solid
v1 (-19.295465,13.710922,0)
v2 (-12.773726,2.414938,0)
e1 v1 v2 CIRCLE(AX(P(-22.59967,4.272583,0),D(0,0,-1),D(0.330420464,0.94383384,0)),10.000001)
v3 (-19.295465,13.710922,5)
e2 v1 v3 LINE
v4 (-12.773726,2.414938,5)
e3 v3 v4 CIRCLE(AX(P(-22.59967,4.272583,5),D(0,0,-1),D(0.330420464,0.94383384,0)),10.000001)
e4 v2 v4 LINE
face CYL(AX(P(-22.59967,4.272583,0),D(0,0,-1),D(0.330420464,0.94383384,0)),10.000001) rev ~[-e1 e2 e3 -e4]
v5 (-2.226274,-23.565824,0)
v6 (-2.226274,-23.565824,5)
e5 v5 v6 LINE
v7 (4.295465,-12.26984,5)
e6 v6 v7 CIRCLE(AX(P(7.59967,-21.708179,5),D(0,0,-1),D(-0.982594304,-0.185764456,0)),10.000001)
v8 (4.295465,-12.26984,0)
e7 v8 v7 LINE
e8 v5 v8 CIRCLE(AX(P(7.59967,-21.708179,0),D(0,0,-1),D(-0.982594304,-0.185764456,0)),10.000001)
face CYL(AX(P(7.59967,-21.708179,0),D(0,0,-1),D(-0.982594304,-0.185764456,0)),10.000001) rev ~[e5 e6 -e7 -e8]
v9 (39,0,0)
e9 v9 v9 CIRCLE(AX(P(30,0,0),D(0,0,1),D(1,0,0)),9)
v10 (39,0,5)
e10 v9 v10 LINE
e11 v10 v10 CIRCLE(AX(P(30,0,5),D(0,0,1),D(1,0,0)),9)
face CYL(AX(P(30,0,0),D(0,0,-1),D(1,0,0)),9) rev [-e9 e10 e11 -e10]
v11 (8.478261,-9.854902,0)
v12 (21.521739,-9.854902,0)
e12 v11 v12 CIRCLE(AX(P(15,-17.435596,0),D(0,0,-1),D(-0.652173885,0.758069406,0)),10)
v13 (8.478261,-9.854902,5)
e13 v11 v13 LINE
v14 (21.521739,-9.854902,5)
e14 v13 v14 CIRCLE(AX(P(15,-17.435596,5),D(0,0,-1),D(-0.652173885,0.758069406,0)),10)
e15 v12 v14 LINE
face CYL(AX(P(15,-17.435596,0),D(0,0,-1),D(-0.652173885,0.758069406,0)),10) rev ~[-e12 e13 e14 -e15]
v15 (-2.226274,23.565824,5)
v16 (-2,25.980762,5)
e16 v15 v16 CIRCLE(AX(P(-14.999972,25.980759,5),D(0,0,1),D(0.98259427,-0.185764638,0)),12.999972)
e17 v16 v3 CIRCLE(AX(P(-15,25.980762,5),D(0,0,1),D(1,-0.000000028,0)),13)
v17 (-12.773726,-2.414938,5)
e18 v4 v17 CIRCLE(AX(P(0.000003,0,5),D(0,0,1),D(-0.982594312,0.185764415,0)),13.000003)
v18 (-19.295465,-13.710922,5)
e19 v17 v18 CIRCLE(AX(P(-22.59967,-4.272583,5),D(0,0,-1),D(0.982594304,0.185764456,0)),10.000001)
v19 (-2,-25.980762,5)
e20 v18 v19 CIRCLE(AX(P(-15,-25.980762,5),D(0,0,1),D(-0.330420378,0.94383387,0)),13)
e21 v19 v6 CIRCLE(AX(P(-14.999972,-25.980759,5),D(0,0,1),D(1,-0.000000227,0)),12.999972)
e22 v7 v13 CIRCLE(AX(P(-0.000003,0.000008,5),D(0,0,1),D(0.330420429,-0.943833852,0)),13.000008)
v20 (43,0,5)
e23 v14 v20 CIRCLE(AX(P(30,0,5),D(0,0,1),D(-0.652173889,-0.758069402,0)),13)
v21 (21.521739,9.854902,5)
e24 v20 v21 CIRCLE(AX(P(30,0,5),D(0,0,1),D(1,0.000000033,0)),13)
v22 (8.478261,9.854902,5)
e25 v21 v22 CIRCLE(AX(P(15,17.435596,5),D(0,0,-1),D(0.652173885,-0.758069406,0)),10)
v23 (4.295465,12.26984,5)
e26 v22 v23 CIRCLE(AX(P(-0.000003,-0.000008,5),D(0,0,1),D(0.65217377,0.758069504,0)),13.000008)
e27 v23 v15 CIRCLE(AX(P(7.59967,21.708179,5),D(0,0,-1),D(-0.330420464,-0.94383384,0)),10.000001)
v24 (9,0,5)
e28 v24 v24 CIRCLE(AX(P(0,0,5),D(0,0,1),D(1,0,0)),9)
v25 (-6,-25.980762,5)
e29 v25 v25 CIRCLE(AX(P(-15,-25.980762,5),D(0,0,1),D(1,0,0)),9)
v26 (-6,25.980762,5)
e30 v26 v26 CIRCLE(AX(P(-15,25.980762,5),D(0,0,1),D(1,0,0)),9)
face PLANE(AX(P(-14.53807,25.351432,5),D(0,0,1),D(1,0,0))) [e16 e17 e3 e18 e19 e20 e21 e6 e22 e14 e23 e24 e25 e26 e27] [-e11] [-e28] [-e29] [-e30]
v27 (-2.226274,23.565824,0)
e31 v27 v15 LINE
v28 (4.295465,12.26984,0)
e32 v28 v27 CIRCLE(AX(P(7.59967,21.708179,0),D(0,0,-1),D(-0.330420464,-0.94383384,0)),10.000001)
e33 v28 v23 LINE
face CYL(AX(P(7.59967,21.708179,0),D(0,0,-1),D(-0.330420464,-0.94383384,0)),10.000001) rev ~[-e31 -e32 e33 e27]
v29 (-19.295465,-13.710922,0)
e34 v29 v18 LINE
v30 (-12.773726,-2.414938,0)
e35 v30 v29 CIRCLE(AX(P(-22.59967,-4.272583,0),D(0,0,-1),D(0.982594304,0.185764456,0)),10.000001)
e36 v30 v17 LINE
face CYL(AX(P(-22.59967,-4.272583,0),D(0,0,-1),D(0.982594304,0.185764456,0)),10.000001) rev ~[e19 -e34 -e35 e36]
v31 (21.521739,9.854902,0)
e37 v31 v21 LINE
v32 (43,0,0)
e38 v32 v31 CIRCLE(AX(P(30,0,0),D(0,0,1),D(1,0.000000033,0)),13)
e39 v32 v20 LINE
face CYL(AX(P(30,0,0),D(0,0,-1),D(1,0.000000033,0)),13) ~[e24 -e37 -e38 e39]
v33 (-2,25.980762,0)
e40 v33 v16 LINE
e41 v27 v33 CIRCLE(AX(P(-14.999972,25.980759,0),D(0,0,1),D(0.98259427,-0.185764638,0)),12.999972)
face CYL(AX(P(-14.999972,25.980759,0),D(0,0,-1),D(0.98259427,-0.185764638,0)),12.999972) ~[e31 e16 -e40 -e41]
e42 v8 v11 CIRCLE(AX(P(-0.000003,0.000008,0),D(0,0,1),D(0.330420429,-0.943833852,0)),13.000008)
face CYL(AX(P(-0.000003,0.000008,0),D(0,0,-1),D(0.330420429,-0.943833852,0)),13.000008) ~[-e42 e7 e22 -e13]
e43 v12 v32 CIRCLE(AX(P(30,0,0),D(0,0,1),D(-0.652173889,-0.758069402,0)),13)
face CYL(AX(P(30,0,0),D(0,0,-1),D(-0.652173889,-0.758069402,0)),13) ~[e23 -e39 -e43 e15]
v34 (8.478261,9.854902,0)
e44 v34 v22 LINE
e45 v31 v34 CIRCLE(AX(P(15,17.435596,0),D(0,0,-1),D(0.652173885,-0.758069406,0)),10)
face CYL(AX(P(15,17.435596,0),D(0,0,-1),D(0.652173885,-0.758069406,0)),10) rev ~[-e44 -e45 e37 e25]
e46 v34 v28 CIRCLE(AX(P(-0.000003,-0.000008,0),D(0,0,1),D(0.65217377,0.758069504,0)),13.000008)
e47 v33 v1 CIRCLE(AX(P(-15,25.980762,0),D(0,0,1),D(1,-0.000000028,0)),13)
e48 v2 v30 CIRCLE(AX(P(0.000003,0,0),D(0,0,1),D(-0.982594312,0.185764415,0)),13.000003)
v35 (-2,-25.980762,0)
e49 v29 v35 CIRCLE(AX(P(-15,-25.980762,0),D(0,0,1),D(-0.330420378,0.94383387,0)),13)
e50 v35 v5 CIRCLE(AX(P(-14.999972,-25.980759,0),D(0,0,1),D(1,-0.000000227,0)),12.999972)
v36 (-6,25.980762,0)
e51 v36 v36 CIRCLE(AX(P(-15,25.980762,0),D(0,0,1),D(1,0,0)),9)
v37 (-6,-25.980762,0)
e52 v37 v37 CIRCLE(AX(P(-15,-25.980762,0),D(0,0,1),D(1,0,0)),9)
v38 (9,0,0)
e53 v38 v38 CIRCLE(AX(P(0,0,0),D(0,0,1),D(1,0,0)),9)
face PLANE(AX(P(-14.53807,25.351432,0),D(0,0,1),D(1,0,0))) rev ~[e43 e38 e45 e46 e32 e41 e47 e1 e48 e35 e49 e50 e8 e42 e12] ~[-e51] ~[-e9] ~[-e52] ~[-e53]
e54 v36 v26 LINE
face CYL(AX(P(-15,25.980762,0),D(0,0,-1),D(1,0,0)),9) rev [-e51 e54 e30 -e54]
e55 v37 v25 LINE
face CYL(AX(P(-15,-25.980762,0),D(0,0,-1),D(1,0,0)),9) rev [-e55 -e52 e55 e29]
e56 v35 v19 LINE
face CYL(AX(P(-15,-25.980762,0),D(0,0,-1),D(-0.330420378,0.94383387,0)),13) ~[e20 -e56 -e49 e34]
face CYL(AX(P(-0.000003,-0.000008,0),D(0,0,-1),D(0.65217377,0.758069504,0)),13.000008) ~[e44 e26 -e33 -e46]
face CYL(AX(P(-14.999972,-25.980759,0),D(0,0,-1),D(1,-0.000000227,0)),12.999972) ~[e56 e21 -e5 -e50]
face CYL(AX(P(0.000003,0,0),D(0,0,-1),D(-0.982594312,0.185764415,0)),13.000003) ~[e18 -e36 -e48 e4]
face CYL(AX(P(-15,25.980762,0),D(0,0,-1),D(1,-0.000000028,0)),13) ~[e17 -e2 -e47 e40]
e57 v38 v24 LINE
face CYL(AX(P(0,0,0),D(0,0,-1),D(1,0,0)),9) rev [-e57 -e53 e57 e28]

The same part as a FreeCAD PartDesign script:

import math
import FreeCAD as App
import Part
import Sketcher

doc = App.newDocument("Part")
body = doc.addObject("PartDesign::Body", "Body")

# Sketch on XY plane
sketch1 = body.newObject("Sketcher::SketchObject", "Sketch")
sketch1.AttachmentSupport = (doc.getObject("XY_Plane"), [""])
sketch1.MapMode = "FlatFace"
sketch1.addGeometry(Part.ArcOfCircle(Part.Circle(App.Vector(-15, 26, 0), App.Vector(0, 0, 1), 13), math.radians(0), math.radians(251)), False)
sketch1.addGeometry(Part.ArcOfCircle(Part.Circle(App.Vector(-22.6, 4.3, 0), App.Vector(0, 0, 1), 10), math.radians(-11), math.radians(71)), False)
sketch1.addGeometry(Part.ArcOfCircle(Part.Circle(App.Vector(0, 0, 0), App.Vector(0, 0, 1), 13), math.radians(169), math.radians(191)), False)
sketch1.addGeometry(Part.ArcOfCircle(Part.Circle(App.Vector(-22.6, -4.3, 0), App.Vector(0, 0, 1), 10), math.radians(-71), math.radians(11)), False)
sketch1.addGeometry(Part.ArcOfCircle(Part.Circle(App.Vector(-15, -26, 0), App.Vector(0, 0, 1), 13), math.radians(109), math.radians(360)), False)
sketch1.addGeometry(Part.ArcOfCircle(Part.Circle(App.Vector(-15, -26, 0), App.Vector(0, 0, 1), 13), math.radians(0), math.radians(10.71)), False)
sketch1.addGeometry(Part.ArcOfCircle(Part.Circle(App.Vector(7.6, -21.7, 0), App.Vector(0, 0, 1), 10), math.radians(109), math.radians(191)), False)
sketch1.addGeometry(Part.ArcOfCircle(Part.Circle(App.Vector(0, 0, 0), App.Vector(0, 0, 1), 13), math.radians(-71), math.radians(-49)), False)
sketch1.addGeometry(Part.ArcOfCircle(Part.Circle(App.Vector(15, -17.4, 0), App.Vector(0, 0, 1), 10), math.radians(49), math.radians(131)), False)
sketch1.addGeometry(Part.ArcOfCircle(Part.Circle(App.Vector(30, 0, 0), App.Vector(0, 0, 1), 13), math.radians(-131), math.radians(0)), False)
sketch1.addGeometry(Part.ArcOfCircle(Part.Circle(App.Vector(30, 0, 0), App.Vector(0, 0, 1), 13), math.radians(0), math.radians(131)), False)
sketch1.addGeometry(Part.ArcOfCircle(Part.Circle(App.Vector(15, 17.4, 0), App.Vector(0, 0, 1), 10), math.radians(-131), math.radians(-49)), False)
sketch1.addGeometry(Part.ArcOfCircle(Part.Circle(App.Vector(0, 0, 0), App.Vector(0, 0, 1), 13), math.radians(49), math.radians(71)), False)
sketch1.addGeometry(Part.ArcOfCircle(Part.Circle(App.Vector(7.6, 21.7, 0), App.Vector(0, 0, 1), 10), math.radians(169), math.radians(251)), False)
sketch1.addGeometry(Part.ArcOfCircle(Part.Circle(App.Vector(-15, 26, 0), App.Vector(0, 0, 1), 13), math.radians(-10.71), math.radians(0)), False)
sketch1.addGeometry(Part.Circle(App.Vector(-15, -26, 0), App.Vector(0, 0, 1), 9), False)
sketch1.addGeometry(Part.Circle(App.Vector(0, 0, 0), App.Vector(0, 0, 1), 9), False)
sketch1.addGeometry(Part.Circle(App.Vector(-15, 26, 0), App.Vector(0, 0, 1), 9), False)
sketch1.addGeometry(Part.Circle(App.Vector(30, 0, 0), App.Vector(0, 0, 1), 9), False)
sketch1.addConstraint(Sketcher.Constraint("Tangent", 0, 2, 1, 2))
sketch1.addConstraint(Sketcher.Constraint("Tangent", 1, 1, 2, 1))
sketch1.addConstraint(Sketcher.Constraint("Tangent", 2, 2, 3, 2))
sketch1.addConstraint(Sketcher.Constraint("Tangent", 3, 1, 4, 1))
sketch1.addConstraint(Sketcher.Constraint("Tangent", 4, 2, 5, 1))
sketch1.addConstraint(Sketcher.Constraint("Tangent", 5, 2, 6, 2))
sketch1.addConstraint(Sketcher.Constraint("Tangent", 6, 1, 7, 1))
sketch1.addConstraint(Sketcher.Constraint("Tangent", 7, 2, 8, 2))
sketch1.addConstraint(Sketcher.Constraint("Tangent", 8, 1, 9, 1))
sketch1.addConstraint(Sketcher.Constraint("Tangent", 9, 2, 10, 1))
sketch1.addConstraint(Sketcher.Constraint("Tangent", 10, 2, 11, 2))
sketch1.addConstraint(Sketcher.Constraint("Tangent", 11, 1, 12, 1))
sketch1.addConstraint(Sketcher.Constraint("Tangent", 12, 2, 13, 2))
sketch1.addConstraint(Sketcher.Constraint("Tangent", 13, 1, 14, 1))
sketch1.addConstraint(Sketcher.Constraint("Tangent", 14, 2, 0, 1))
sketch1.addConstraint(Sketcher.Constraint("Coincident", 2, 3, -1, 1))
sketch1.addConstraint(Sketcher.Constraint("Coincident", 7, 3, -1, 1))
sketch1.addConstraint(Sketcher.Constraint("Coincident", 12, 3, -1, 1))
sketch1.addConstraint(Sketcher.Constraint("Coincident", 16, 3, -1, 1))
sketch1.addConstraint(Sketcher.Constraint("Coincident", 15, 3, 4, 3))
sketch1.addConstraint(Sketcher.Constraint("Coincident", 17, 3, 0, 3))
sketch1.addConstraint(Sketcher.Constraint("Coincident", 18, 3, 9, 3))
sketch1.addConstraint(Sketcher.Constraint("Equal", 1, 3))
sketch1.addConstraint(Sketcher.Constraint("Equal", 0, 4))
sketch1.addConstraint(Sketcher.Constraint("Equal", 3, 6))
sketch1.addConstraint(Sketcher.Constraint("Equal", 6, 8))
sketch1.addConstraint(Sketcher.Constraint("Equal", 4, 9))
sketch1.addConstraint(Sketcher.Constraint("Equal", 9, 10))
sketch1.addConstraint(Sketcher.Constraint("Equal", 8, 11))
sketch1.addConstraint(Sketcher.Constraint("Equal", 7, 12))
sketch1.addConstraint(Sketcher.Constraint("Equal", 11, 13))
sketch1.addConstraint(Sketcher.Constraint("Equal", 5, 14))
sketch1.addConstraint(Sketcher.Constraint("Equal", 15, 16))
sketch1.addConstraint(Sketcher.Constraint("Equal", 16, 17))
sketch1.addConstraint(Sketcher.Constraint("Equal", 17, 18))
sketch1.addConstraint(Sketcher.Constraint("Symmetric", 0, 3, 4, 3, -1))
sketch1.addConstraint(Sketcher.Constraint("PointOnObject", 9, 3, -1))
sketch1.addConstraint(Sketcher.Constraint("PointOnObject", 9, 2, -1))
sketch1.addConstraint(Sketcher.Constraint("Horizontal", 15, 3, 4, 2))
sketch1.addConstraint(Sketcher.Constraint("Horizontal", 7, 2, 8, 1))
sketch1.addConstraint(Sketcher.Constraint("Horizontal", 17, 3, 14, 2))
sketch1.addConstraint(Sketcher.Constraint("Diameter", 15, 18.0))
sketch1.addConstraint(Sketcher.Constraint("Radius", 0, 13.0))
sketch1.addConstraint(Sketcher.Constraint("Radius", 1, 10.000001))
sketch1.addConstraint(Sketcher.Constraint("DistanceX", 0, 3, -1, 1, 15.0))
sketch1.addConstraint(Sketcher.Constraint("DistanceX", -1, 1, 8, 3, 15.0))
sketch1.addConstraint(Sketcher.Constraint("Radius", 5, 12.999972))
sketch1.addConstraint(Sketcher.Constraint("Radius", 2, 13.000003))
sketch1.addConstraint(Sketcher.Constraint("DistanceX", 3, 3, 5, 3, 7.599698))
pad1 = body.newObject("PartDesign::Pad", "Pad")
pad1.Profile = sketch1
pad1.Length = 5

doc.recompute()
